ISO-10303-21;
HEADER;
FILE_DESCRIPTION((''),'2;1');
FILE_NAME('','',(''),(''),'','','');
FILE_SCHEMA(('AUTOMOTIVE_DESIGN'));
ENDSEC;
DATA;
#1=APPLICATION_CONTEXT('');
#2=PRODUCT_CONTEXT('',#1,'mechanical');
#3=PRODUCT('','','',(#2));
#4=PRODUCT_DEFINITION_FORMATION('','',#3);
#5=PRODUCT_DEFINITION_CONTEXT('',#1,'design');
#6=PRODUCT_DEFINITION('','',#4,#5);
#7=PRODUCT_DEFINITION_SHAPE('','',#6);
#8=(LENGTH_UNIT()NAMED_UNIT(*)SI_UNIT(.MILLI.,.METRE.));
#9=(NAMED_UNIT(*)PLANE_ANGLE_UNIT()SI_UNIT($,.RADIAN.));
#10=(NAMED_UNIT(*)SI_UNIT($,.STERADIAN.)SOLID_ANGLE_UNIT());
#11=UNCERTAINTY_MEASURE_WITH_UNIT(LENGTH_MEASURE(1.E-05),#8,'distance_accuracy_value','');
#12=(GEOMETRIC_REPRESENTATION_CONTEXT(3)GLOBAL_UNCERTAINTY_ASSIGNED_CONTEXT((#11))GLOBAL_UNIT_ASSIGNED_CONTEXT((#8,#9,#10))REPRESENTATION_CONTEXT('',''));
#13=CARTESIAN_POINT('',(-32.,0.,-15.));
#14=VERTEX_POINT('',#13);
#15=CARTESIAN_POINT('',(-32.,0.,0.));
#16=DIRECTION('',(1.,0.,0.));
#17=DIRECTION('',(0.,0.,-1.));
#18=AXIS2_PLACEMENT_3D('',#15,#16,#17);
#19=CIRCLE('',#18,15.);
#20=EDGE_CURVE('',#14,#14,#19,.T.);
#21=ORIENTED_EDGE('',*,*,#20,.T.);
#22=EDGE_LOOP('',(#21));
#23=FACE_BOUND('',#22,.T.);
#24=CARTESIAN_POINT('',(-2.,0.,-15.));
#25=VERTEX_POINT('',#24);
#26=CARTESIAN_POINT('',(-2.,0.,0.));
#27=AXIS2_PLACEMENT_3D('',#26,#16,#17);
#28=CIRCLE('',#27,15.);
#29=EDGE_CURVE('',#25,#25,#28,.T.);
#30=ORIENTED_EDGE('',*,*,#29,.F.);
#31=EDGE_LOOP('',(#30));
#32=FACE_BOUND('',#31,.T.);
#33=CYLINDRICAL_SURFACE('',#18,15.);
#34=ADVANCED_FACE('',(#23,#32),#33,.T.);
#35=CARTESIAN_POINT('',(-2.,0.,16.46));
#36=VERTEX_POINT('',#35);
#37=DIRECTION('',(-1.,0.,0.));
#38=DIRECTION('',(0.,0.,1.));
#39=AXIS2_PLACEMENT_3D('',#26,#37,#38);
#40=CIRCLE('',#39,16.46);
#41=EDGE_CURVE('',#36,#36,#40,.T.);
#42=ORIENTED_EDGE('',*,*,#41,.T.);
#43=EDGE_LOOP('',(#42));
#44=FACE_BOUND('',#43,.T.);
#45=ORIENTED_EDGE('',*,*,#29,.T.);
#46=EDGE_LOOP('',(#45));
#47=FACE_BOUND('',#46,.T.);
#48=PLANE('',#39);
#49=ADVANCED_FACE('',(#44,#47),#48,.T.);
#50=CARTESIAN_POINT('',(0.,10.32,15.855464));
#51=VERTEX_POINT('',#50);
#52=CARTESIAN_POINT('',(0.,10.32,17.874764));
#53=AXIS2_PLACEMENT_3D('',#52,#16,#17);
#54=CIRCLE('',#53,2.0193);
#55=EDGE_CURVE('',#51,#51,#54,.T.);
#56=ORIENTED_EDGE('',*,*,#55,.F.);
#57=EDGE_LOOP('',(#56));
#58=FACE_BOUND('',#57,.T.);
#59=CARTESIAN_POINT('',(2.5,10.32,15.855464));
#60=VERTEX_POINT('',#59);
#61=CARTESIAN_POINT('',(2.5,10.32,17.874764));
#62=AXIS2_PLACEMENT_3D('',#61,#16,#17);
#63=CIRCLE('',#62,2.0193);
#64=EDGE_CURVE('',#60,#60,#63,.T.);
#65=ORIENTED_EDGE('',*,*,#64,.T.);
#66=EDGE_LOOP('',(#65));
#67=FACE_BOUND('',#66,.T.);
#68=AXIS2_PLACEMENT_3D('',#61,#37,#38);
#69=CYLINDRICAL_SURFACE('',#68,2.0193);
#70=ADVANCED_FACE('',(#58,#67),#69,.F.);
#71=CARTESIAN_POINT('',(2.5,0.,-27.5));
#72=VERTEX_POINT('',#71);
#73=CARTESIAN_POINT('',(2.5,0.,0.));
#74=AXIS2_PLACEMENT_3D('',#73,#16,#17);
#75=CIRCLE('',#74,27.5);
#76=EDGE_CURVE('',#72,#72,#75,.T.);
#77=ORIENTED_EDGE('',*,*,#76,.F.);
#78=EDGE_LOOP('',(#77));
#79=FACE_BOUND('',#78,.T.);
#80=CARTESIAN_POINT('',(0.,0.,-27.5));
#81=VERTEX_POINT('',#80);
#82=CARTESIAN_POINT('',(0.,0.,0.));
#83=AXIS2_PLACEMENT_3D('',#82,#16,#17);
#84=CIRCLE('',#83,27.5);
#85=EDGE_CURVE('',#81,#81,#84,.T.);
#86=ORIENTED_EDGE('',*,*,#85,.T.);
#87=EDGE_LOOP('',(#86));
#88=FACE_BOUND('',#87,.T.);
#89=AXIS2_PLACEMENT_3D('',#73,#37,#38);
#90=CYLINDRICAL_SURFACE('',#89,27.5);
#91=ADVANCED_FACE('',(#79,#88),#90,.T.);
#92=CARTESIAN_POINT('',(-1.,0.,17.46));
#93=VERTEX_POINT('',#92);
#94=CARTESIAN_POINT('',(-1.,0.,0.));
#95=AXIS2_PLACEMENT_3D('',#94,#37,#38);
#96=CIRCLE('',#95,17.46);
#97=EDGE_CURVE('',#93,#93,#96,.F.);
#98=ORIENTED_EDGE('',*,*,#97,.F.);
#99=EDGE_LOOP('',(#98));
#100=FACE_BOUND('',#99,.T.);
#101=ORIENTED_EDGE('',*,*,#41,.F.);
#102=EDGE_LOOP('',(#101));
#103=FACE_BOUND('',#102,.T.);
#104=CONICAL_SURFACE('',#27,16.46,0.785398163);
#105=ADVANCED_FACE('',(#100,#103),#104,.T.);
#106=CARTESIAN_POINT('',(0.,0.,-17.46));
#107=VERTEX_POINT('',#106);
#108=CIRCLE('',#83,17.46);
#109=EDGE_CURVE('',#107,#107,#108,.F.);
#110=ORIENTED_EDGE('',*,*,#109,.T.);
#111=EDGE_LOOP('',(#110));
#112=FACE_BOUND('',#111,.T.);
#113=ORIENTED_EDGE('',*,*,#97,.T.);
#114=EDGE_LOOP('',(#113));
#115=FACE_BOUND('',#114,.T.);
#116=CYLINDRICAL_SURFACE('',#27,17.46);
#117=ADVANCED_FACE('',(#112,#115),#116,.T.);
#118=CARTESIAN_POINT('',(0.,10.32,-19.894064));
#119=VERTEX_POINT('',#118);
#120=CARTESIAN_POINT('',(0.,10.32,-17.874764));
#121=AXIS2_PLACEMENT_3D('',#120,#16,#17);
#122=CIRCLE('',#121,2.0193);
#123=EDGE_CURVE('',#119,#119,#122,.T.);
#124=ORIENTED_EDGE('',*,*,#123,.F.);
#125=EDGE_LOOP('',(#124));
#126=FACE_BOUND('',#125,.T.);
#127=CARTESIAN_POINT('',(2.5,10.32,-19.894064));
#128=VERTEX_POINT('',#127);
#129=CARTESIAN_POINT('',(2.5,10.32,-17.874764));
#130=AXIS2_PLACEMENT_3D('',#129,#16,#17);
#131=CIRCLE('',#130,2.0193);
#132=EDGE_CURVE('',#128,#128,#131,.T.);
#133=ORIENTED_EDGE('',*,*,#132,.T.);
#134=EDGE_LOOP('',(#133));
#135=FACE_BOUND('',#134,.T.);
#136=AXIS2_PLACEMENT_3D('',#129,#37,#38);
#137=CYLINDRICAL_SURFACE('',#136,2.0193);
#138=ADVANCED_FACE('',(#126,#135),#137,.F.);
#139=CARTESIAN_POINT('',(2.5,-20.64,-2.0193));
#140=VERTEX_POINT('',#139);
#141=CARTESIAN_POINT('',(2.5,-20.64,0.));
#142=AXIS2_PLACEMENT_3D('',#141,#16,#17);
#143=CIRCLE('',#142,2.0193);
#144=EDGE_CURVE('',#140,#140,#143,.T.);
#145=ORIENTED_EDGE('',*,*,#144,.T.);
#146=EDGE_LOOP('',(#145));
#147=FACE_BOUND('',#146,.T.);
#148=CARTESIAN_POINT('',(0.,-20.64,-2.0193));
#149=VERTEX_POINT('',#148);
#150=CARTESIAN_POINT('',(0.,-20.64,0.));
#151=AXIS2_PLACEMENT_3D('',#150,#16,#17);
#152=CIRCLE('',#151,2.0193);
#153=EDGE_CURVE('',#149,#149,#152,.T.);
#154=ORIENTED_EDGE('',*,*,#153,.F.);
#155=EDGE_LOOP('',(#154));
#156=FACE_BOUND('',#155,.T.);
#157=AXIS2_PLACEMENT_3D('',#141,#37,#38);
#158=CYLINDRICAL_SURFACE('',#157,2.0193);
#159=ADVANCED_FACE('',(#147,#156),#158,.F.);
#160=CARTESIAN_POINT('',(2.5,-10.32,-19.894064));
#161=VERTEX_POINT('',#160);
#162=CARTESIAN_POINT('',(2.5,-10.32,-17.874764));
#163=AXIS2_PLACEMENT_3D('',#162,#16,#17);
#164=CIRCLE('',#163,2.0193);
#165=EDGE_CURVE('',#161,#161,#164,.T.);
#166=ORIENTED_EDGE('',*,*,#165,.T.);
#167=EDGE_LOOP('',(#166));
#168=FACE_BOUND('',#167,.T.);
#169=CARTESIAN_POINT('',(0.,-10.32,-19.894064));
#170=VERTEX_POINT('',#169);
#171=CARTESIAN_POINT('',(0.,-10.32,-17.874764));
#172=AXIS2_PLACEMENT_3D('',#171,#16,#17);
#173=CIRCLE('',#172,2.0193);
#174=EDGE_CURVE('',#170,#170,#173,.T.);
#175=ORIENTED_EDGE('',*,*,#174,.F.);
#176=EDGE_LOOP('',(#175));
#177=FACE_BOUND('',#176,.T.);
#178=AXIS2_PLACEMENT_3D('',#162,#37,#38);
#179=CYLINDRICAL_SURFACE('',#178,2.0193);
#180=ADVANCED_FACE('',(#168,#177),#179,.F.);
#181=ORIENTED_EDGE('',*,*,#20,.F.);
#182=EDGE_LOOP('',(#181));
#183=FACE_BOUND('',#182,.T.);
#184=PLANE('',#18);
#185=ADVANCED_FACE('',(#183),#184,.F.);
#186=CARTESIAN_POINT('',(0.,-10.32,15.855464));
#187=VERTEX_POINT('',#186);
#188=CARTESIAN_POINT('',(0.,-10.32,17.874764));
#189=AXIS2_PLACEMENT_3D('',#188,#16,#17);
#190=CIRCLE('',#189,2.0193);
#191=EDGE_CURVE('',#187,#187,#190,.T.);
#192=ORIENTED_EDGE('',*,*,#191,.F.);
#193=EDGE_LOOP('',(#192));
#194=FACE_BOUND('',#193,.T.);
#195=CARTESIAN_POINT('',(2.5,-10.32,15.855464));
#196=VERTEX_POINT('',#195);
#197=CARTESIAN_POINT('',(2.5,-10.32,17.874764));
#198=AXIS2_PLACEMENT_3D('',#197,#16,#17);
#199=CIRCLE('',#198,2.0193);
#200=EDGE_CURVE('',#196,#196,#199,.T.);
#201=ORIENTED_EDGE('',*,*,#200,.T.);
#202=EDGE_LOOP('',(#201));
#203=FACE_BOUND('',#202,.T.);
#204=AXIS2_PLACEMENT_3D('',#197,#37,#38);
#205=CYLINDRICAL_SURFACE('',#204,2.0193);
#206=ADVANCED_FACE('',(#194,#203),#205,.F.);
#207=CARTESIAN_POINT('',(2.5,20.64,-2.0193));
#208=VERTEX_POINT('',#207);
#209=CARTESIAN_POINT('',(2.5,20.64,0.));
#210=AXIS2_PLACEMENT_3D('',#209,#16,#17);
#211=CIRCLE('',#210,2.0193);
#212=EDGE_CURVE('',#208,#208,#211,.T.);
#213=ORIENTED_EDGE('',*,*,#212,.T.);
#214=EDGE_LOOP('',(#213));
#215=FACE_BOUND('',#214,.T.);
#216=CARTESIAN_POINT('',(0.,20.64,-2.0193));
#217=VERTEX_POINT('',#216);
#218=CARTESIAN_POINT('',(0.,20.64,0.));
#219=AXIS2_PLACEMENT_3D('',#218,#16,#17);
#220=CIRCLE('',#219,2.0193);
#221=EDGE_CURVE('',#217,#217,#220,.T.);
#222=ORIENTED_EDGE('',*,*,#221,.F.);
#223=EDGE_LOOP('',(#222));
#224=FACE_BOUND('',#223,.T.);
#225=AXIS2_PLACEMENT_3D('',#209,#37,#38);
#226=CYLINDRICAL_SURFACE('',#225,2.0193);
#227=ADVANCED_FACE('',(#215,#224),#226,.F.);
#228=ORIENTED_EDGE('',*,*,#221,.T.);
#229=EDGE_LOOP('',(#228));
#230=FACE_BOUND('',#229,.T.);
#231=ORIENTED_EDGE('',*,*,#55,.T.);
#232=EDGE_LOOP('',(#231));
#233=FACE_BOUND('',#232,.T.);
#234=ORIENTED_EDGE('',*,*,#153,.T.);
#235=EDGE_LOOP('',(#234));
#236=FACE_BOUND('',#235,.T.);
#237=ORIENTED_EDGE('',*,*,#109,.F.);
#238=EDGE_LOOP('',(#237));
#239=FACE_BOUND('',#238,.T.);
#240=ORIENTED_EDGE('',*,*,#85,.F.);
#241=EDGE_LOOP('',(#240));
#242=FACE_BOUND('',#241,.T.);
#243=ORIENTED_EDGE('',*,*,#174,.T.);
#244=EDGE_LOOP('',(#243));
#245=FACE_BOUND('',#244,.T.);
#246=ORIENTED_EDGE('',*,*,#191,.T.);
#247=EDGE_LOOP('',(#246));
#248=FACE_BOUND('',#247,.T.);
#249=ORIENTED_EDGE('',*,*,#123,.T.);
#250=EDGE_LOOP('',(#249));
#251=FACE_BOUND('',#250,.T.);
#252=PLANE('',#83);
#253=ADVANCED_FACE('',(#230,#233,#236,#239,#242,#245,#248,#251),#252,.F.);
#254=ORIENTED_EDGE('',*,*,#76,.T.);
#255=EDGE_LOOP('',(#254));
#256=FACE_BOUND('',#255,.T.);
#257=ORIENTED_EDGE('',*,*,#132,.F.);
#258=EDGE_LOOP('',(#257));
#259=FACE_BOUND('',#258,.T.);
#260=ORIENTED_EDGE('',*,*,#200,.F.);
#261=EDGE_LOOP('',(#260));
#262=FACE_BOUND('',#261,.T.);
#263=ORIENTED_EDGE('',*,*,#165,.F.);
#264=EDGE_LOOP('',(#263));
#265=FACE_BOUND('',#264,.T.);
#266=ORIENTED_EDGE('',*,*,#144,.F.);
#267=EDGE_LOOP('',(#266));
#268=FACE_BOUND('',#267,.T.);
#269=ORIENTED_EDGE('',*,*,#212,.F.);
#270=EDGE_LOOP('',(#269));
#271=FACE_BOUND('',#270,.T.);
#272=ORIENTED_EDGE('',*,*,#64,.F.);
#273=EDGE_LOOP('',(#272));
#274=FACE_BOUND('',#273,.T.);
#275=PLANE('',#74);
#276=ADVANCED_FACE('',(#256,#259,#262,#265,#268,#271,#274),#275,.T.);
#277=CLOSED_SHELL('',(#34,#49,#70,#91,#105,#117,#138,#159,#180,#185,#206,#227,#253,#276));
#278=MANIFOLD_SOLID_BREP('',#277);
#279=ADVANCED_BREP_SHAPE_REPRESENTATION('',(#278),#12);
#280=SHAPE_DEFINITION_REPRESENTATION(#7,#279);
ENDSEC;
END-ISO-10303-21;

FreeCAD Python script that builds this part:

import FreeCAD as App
import Part
import Sketcher
Q = App.Units.Quantity


def edges_at(feature, points):
    """Names of the edges that pass closest to the given points."""
    edges = feature.Shape.Edges
    near = lambda p: min(range(len(edges)), key=lambda i: edges[i].distToShape(Part.Vertex(*p))[0])
    return sorted({f"Edge{near(p) + 1}" for p in points})

doc = App.newDocument("Part")
body = doc.addObject("PartDesign::Body", "Body")

# Sketch on YZ plane
sketch1 = doc.addObject("Sketcher::SketchObject", "Sketch")
body.addObject(sketch1)
sketch1.AttachmentSupport = (doc.YZ_Plane, [""])
sketch1.MapMode = "FlatFace"
sketch1.addGeometry([
    Part.Circle(App.Vector(0, 0, 0), App.Vector(0, 0, 1), 27.5),  # 0
    Part.Circle(App.Vector(-10.32, 17.874764, 0), App.Vector(0, 0, 1), 2.0193),  # 1
    Part.Circle(App.Vector(-20.64, 0, 0), App.Vector(0, 0, 1), 2.0193),  # 2
    Part.Circle(App.Vector(-10.32, -17.874764, 0), App.Vector(0, 0, 1), 2.0193),  # 3
    Part.Circle(App.Vector(10.32, 17.874764, 0), App.Vector(0, 0, 1), 2.0193),  # 4
    Part.Circle(App.Vector(10.32, -17.874764, 0), App.Vector(0, 0, 1), 2.0193),  # 5
    Part.Circle(App.Vector(20.64, 0, 0), App.Vector(0, 0, 1), 2.0193),  # 6
], False)
sketch1.addConstraint([
    Sketcher.Constraint("Coincident", 0, 3, -1, 1),
    Sketcher.Constraint("Equal", 1, 2),
    Sketcher.Constraint("Equal", 2, 3),
    Sketcher.Constraint("Equal", 3, 4),
    Sketcher.Constraint("Equal", 4, 5),
    Sketcher.Constraint("Equal", 5, 6),
    Sketcher.Constraint("Symmetric", 3, 3, 4, 3, -1, 1),
    Sketcher.Constraint("Symmetric", 1, 3, 5, 3, -1, 1),
    Sketcher.Constraint("Symmetric", 2, 3, 6, 3, -1, 1),
    Sketcher.Constraint("Symmetric", 1, 3, 4, 3, -2),
    Sketcher.Constraint("PointOnObject", 2, 3, -1),
    Sketcher.Constraint("Diameter", 0, Q("55 mm")),
    Sketcher.Constraint("Diameter", 1, Q("4.0386 mm")),
    Sketcher.Constraint("DistanceX", 1, 3, -1, 1, Q("10.32 mm")),
    Sketcher.Constraint("DistanceX", 2, 3, -1, 1, Q("20.64 mm")),
    Sketcher.Constraint("DistanceY", 3, 3, 1, 3, Q("35.749529 mm")),
])
pad1 = doc.addObject("PartDesign::Pad", "Pad")
body.addObject(pad1)
pad1.Profile = sketch1
pad1.Length = 2.5

# Sketch on YZ plane
sketch2 = doc.addObject("Sketcher::SketchObject", "Sketch001")
body.addObject(sketch2)
sketch2.AttachmentSupport = (doc.YZ_Plane, [""])
sketch2.MapMode = "FlatFace"
sketch2.addGeometry(Part.Circle(App.Vector(0, 0, 0), App.Vector(0, 0, 1), 17.46), False)
sketch2.addConstraint([
    Sketcher.Constraint("Coincident", 0, 3, -1, 1),
    Sketcher.Constraint("Diameter", 0, Q("34.92 mm")),
])
pad2 = doc.addObject("PartDesign::Pad", "Pad001")
body.addObject(pad2)
pad2.Profile = sketch2
pad2.Length = 2
pad2.Reversed = True
doc.recompute()

chamfer = doc.addObject("PartDesign::Chamfer", "Chamfer")
body.addObject(chamfer)
chamfer.Base = (pad2, edges_at(pad2, [(-2, 0, 17.46)]))
chamfer.Size = 1

# Sketch on YZ plane
sketch3 = doc.addObject("Sketcher::SketchObject", "Sketch002")
body.addObject(sketch3)
sketch3.AttachmentSupport = (doc.YZ_Plane, [""])
sketch3.MapMode = "FlatFace"
sketch3.AttachmentOffset = App.Placement(App.Vector(0, 0, -2), App.Rotation())
sketch3.addGeometry(Part.Circle(App.Vector(0, 0, 0), App.Vector(0, 0, 1), 15), False)
sketch3.addConstraint([
    Sketcher.Constraint("Coincident", 0, 3, -1, 1),
    Sketcher.Constraint("Diameter", 0, Q("30 mm")),
])
pad3 = doc.addObject("PartDesign::Pad", "Pad002")
body.addObject(pad3)
pad3.Profile = sketch3
pad3.Length = 30
pad3.Reversed = True

doc.recompute()
